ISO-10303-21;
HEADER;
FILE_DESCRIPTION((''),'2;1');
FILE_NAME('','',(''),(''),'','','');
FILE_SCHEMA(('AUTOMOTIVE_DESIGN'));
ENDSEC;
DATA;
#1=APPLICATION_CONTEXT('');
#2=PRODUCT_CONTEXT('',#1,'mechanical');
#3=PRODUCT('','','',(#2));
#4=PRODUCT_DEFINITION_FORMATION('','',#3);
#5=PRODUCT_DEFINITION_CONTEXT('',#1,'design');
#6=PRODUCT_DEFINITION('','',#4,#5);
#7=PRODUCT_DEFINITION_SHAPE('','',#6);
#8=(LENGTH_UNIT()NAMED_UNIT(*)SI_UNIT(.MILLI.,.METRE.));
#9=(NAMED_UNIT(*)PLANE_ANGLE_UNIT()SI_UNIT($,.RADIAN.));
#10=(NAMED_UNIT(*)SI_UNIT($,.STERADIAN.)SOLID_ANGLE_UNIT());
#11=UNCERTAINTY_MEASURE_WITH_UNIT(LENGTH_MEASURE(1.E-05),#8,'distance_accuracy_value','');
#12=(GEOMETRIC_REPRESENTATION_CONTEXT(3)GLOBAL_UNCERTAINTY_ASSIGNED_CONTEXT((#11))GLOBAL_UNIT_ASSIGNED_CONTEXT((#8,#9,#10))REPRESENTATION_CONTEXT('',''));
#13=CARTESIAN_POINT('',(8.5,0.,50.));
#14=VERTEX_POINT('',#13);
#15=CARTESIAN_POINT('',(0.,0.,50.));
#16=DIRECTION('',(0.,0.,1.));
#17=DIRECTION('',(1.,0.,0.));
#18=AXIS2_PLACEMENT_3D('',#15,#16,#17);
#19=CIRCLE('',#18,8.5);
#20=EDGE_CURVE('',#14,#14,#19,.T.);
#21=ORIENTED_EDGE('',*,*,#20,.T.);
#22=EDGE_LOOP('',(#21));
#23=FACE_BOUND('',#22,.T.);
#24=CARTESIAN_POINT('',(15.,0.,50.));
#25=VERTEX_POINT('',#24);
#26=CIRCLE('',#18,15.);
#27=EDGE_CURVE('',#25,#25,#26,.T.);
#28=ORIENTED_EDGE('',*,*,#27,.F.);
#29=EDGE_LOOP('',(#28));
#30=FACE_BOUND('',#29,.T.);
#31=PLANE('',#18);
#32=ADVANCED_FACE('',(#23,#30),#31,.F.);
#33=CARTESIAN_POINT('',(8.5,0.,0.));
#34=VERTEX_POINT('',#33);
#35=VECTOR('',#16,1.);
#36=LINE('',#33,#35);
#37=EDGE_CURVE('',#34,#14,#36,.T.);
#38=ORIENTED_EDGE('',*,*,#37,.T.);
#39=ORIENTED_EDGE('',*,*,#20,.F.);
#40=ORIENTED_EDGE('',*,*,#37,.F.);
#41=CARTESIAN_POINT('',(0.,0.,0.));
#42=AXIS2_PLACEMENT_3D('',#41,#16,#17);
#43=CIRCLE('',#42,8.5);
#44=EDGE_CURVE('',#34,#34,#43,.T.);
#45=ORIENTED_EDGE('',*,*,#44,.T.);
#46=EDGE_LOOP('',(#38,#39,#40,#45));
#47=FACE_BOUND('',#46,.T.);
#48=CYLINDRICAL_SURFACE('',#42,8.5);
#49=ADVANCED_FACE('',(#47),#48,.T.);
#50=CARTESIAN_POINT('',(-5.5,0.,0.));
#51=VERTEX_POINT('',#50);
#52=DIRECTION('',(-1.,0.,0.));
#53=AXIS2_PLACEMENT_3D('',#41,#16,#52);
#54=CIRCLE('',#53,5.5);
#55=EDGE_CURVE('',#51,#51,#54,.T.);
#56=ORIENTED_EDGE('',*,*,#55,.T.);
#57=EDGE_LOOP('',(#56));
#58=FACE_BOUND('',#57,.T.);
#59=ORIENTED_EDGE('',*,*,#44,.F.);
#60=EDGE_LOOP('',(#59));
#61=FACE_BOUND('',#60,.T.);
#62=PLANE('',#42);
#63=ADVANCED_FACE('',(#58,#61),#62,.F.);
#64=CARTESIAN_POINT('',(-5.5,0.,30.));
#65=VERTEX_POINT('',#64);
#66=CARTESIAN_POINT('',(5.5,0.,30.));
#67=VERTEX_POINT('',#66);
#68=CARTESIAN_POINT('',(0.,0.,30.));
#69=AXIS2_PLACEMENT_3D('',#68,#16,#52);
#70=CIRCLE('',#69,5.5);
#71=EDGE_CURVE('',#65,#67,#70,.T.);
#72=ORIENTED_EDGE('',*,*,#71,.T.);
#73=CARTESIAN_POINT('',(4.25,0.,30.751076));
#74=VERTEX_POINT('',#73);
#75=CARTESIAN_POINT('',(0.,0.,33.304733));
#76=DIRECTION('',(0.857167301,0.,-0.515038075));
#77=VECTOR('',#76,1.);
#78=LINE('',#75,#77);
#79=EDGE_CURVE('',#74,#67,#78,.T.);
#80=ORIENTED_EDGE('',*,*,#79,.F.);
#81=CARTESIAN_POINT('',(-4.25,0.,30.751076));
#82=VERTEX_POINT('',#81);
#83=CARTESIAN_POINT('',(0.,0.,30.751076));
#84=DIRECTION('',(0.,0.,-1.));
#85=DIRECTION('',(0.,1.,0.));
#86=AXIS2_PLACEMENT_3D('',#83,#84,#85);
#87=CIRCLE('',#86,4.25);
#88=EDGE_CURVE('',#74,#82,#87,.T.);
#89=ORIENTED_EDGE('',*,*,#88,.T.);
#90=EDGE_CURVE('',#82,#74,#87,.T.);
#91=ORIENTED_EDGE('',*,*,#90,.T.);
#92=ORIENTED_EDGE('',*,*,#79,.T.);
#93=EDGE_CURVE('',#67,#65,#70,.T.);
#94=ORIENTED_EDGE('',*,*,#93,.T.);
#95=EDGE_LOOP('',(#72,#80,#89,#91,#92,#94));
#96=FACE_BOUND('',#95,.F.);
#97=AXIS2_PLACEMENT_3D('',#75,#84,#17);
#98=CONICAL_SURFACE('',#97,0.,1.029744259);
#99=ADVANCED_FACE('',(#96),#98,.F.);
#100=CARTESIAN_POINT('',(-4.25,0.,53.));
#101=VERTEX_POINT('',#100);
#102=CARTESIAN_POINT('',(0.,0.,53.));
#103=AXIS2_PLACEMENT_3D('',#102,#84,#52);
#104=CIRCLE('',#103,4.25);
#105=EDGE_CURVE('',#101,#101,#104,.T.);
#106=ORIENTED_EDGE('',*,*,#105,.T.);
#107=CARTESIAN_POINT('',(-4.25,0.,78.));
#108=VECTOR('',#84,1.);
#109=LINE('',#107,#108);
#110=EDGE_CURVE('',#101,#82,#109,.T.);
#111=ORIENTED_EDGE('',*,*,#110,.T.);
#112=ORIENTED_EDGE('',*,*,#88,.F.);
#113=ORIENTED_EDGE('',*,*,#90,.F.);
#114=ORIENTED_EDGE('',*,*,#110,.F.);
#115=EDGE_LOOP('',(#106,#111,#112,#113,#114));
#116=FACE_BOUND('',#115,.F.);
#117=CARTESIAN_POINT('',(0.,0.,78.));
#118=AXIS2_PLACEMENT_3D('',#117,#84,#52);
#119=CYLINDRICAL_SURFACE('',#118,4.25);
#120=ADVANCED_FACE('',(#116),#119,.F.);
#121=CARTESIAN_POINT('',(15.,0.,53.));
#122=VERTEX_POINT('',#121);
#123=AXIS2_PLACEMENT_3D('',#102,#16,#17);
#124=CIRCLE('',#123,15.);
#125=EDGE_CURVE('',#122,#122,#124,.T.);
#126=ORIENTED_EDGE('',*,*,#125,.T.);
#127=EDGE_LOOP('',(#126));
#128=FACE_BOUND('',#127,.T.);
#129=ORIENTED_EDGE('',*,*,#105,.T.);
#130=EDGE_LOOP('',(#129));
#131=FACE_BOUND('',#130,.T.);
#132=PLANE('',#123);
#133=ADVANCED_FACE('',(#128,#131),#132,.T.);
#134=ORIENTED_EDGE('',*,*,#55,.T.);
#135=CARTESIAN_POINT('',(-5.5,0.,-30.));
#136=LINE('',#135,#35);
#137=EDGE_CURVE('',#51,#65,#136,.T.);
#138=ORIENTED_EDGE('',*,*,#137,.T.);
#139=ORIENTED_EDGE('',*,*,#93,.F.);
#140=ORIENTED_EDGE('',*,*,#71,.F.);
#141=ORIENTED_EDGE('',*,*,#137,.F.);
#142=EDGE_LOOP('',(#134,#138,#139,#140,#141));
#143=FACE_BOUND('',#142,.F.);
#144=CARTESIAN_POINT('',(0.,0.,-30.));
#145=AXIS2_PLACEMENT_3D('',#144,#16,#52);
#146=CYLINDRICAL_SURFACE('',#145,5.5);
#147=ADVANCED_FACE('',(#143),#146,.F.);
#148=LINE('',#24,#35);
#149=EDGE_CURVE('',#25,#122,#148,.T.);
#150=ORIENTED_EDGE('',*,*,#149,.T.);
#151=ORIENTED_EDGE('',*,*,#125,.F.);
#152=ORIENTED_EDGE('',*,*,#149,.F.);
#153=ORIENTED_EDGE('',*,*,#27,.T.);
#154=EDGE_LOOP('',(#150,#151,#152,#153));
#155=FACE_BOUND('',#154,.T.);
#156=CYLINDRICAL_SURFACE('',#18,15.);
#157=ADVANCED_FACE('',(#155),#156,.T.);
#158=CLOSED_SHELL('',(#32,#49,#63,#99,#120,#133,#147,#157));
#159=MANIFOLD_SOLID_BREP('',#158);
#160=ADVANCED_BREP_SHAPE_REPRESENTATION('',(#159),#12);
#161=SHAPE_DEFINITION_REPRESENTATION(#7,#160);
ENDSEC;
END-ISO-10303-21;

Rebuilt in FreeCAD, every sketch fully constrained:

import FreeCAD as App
import Part
import Sketcher

V = App.Vector
Q = App.Units.Quantity

doc = App.newDocument("Part")
body = doc.addObject("PartDesign::Body", "Body")

sketch1 = body.newObject("Sketcher::SketchObject", "Sketch")
sketch1.AttachmentSupport = (doc.getObject("XZ_Plane"), [""])
sketch1.MapMode = "FlatFace"
sketch1.addGeometry([
    Part.LineSegment(V(0, 53, 0), V(0, 0, 0)),
    Part.LineSegment(V(0, 0, 0), V(8.5, 0, 0)),
    Part.LineSegment(V(8.5, 0, 0), V(8.5, 50, 0)),
    Part.LineSegment(V(8.5, 50, 0), V(15, 50, 0)),
    Part.LineSegment(V(15, 50, 0), V(15, 53, 0)),
    Part.LineSegment(V(15, 53, 0), V(0, 53, 0)),
], False)
sketch1.addConstraint([
    Sketcher.Constraint("Coincident", 0, 2, 1, 1),
    Sketcher.Constraint("Coincident", 1, 2, 2, 1),
    Sketcher.Constraint("Coincident", 2, 2, 3, 1),
    Sketcher.Constraint("Coincident", 3, 2, 4, 1),
    Sketcher.Constraint("Coincident", 4, 2, 5, 1),
    Sketcher.Constraint("Coincident", 5, 2, 0, 1),
    Sketcher.Constraint("Vertical", 0),
    Sketcher.Constraint("Horizontal", 1),
    Sketcher.Constraint("Vertical", 2),
    Sketcher.Constraint("Horizontal", 3),
    Sketcher.Constraint("Vertical", 4),
    Sketcher.Constraint("Horizontal", 5),
    Sketcher.Constraint("Coincident", 0, 2, -1, 1),
    Sketcher.Constraint("DistanceX", 5, 2, 5, 1, Q("15 mm")),
    Sketcher.Constraint("DistanceY", 0, 2, 0, 1, Q("53 mm")),
    Sketcher.Constraint("DistanceY", 2, 1, 2, 2, Q("50 mm")),
    Sketcher.Constraint("DistanceX", 1, 1, 1, 2, Q("8.5 mm")),
])
revolution = body.newObject("PartDesign::Revolution", "Revolution")
revolution.Profile = sketch1
revolution.ReferenceAxis = (sketch1, ["V_Axis"])
revolution.Angle = 360

sketch2 = body.newObject("Sketcher::SketchObject", "Sketch001")
sketch2.AttachmentSupport = (doc.getObject("XY_Plane"), [""])
sketch2.MapMode = "FlatFace"
sketch2.AttachmentOffset = App.Placement(V(0, 0, 53), App.Rotation())
sketch2.addGeometry(Part.Circle(V(0, 0, 0), V(0, 0, 1), 4.2), False)
sketch2.addConstraint([
    Sketcher.Constraint("Coincident", 0, 3, -1, 1),
    Sketcher.Constraint("Diameter", 0, Q("8.5 mm")),
])
doc.recompute()
hole = body.newObject("PartDesign::Hole", "Hole")
hole.Profile = sketch2
hole.ThreadType = "None"
hole.Diameter = 8.5
hole.DepthType = "Dimension"
hole.Depth = 25
hole.DrillPoint = "Angled"
hole.DrillPointAngle = 118

sketch3 = body.newObject("Sketcher::SketchObject", "Sketch002")
sketch3.AttachmentSupport = (doc.getObject("XY_Plane"), [""])
sketch3.MapMode = "FlatFace"
sketch3.addGeometry(Part.Circle(V(0, 0, 0), V(0, 0, 1), 6), False)
sketch3.addConstraint([
    Sketcher.Constraint("Coincident", 0, 3, -1, 1),
    Sketcher.Constraint("Diameter", 0, Q("11 mm")),
])
doc.recompute()
hole2 = body.newObject("PartDesign::Hole", "Hole001")
hole2.Profile = sketch3
hole2.ThreadType = "None"
hole2.Diameter = 11
hole2.DepthType = "Dimension"
hole2.Depth = 30
hole2.DrillPoint = "Angled"
hole2.DrillPointAngle = 118
hole2.Reversed = True

doc.recompute()
